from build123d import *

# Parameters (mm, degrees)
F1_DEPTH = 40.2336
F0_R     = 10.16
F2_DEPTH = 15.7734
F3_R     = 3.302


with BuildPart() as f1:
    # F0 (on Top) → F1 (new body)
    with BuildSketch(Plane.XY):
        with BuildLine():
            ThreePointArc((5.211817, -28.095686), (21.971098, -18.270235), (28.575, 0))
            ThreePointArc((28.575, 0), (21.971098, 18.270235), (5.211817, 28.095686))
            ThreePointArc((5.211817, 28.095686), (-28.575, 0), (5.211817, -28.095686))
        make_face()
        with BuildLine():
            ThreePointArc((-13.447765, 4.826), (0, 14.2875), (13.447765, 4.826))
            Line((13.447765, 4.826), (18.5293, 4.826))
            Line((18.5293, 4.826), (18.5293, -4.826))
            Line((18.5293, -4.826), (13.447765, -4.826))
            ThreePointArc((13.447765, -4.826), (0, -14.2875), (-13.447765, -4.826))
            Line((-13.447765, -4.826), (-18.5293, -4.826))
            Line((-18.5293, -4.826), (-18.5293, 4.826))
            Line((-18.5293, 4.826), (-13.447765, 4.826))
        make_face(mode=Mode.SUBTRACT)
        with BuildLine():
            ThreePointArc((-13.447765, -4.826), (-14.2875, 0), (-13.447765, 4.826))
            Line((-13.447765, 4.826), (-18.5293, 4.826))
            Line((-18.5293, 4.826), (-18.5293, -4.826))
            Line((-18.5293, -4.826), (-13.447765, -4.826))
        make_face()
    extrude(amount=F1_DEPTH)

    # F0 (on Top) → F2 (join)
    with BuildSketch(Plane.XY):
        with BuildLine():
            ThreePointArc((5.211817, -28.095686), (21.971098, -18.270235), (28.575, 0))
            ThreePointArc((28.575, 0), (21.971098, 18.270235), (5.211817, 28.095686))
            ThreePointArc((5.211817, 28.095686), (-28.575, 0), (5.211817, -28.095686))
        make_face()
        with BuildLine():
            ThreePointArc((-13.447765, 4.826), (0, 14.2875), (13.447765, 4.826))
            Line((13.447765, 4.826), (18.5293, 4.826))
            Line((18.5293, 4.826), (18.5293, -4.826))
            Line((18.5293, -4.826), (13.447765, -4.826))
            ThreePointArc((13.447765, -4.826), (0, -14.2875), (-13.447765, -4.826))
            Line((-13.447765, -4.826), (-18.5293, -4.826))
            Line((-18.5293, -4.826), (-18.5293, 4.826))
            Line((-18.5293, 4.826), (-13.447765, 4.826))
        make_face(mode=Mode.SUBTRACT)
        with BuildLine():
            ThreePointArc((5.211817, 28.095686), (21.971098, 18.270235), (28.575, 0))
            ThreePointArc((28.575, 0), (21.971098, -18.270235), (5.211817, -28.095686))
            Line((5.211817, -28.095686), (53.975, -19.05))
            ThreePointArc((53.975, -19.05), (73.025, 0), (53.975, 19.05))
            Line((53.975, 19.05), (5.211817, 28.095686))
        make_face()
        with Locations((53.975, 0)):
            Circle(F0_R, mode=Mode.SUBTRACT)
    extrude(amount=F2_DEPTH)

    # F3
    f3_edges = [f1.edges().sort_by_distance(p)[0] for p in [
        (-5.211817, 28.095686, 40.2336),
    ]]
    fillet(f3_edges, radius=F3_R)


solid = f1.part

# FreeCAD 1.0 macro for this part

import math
import FreeCAD as App
import Part
import Sketcher

V = App.Vector
Q = App.Units.Quantity


def edges_at(feature, points):
    """Names of the edges that pass closest to the given points."""
    edges = feature.Shape.Edges
    near = lambda p: min(range(len(edges)), key=lambda i: edges[i].distToShape(Part.Vertex(*p))[0])
    return sorted({f"Edge{near(p) + 1}" for p in points})

doc = App.newDocument("Part")
body = doc.addObject("PartDesign::Body", "Body")

# Sketch on XY plane
sketch1 = body.newObject("Sketcher::SketchObject", "Sketch")
sketch1.AttachmentSupport = (doc.getObject("XY_Plane"), [""])
sketch1.MapMode = "FlatFace"
sketch1.addGeometry([
    Part.ArcOfCircle(Part.Circle(V(0, 0, 0), V(0, 0, 1), 29), math.radians(-79), math.radians(0)),  # 0
    Part.ArcOfCircle(Part.Circle(V(0, 0, 0), V(0, 0, 1), 29), math.radians(0), math.radians(79)),  # 1
    Part.ArcOfCircle(Part.Circle(V(0, 0, 0), V(0, 0, 1), 29), math.radians(79), math.radians(281)),  # 2
    Part.ArcOfCircle(Part.Circle(V(0, 0, 0), V(0, 0, 1), 14), math.radians(-160), math.radians(-20)),  # 3
    Part.ArcOfCircle(Part.Circle(V(0, 0, 0), V(0, 0, 1), 14), math.radians(160), math.radians(200)),  # 4
    Part.ArcOfCircle(Part.Circle(V(0, 0, 0), V(0, 0, 1), 14), math.radians(20), math.radians(160)),  # 5
    Part.LineSegment(V(13, 5, 0), V(19, 5, 0)),  # 6
    Part.LineSegment(V(19, 5, 0), V(19, -5, 0)),  # 7
    Part.LineSegment(V(19, -5, 0), V(13, -5, 0)),  # 8
], False)
sketch1.addConstraint([
    Sketcher.Constraint("Tangent", 0, 2, 1, 1),
    Sketcher.Constraint("Tangent", 1, 2, 2, 1),
    Sketcher.Constraint("Tangent", 2, 2, 0, 1),
    Sketcher.Constraint("Tangent", 3, 1, 4, 2),
    Sketcher.Constraint("Tangent", 4, 1, 5, 2),
    Sketcher.Constraint("Coincident", 5, 1, 6, 1),
    Sketcher.Constraint("Coincident", 6, 2, 7, 1),
    Sketcher.Constraint("Coincident", 7, 2, 8, 1),
    Sketcher.Constraint("Coincident", 8, 2, 3, 2),
    Sketcher.Constraint("Horizontal", 6),
    Sketcher.Constraint("Vertical", 7),
    Sketcher.Constraint("Horizontal", 8),
    Sketcher.Constraint("Coincident", 0, 3, -1, 1),
    Sketcher.Constraint("Coincident", 3, 3, -1, 1),
    Sketcher.Constraint("Coincident", 5, 3, -1, 1),
    Sketcher.Constraint("PointOnObject", 0, 2, -1),
    Sketcher.Constraint("Horizontal", 4, 1, 5, 1),
    Sketcher.Constraint("Horizontal", 3, 1, 7, 2),
    Sketcher.Constraint("Vertical", 1, 2, 2, 2),
    Sketcher.Constraint("Vertical", 3, 1, 4, 1),
    Sketcher.Constraint("Radius", 0, Q("1.125 in")),
    Sketcher.Constraint("Radius", 3, Q("0.5625 in")),
    Sketcher.Constraint("DistanceY", 7, 2, 7, 1, Q("0.38 in")),
    Sketcher.Constraint("DistanceX", -1, 1, 6, 2, Q("0.7295 in")),
    Sketcher.Constraint("DistanceX", -1, 1, 1, 2, 5.211817),
])
pad1 = body.newObject("PartDesign::Pad", "Pad")
pad1.Profile = sketch1
pad1.Length = Q("1.584 in")

# Sketch on XY plane
sketch2 = body.newObject("Sketcher::SketchObject", "Sketch001")
sketch2.AttachmentSupport = (doc.getObject("XY_Plane"), [""])
sketch2.MapMode = "FlatFace"
sketch2.addGeometry([
    Part.ArcOfCircle(Part.Circle(V(0, 0, 0), V(0, 0, 1), 29), math.radians(79), math.radians(281)),  # 0
    Part.LineSegment(V(5, -28, 0), V(54, -19, 0)),  # 1
    Part.ArcOfCircle(Part.Circle(V(54, 0, 0), V(0, 0, 1), 19), math.radians(-90), math.radians(90)),  # 2
    Part.LineSegment(V(54, 19, 0), V(5, 28, 0)),  # 3
    Part.Circle(V(54, 0, 0), V(0, 0, 1), 10),  # 4
    Part.LineSegment(V(-19, 5, 0), V(-13, 5, 0)),  # 5
    Part.ArcOfCircle(Part.Circle(V(0, 0, 0), V(0, 0, 1), 14), math.radians(20), math.radians(160)),  # 6
    Part.LineSegment(V(13, 5, 0), V(19, 5, 0)),  # 7
    Part.LineSegment(V(19, 5, 0), V(19, -5, 0)),  # 8
    Part.LineSegment(V(19, -5, 0), V(13, -5, 0)),  # 9
    Part.ArcOfCircle(Part.Circle(V(0, 0, 0), V(0, 0, 1), 14), math.radians(-160), math.radians(-20)),  # 10
    Part.LineSegment(V(-13, -5, 0), V(-19, -5, 0)),  # 11
    Part.LineSegment(V(-19, -5, 0), V(-19, 5, 0)),  # 12
], False)
sketch2.addConstraint([
    Sketcher.Constraint("Tangent", 0, 2, 1, 1),
    Sketcher.Constraint("Coincident", 1, 2, 2, 1),
    Sketcher.Constraint("Coincident", 2, 2, 3, 1),
    Sketcher.Constraint("Tangent", 3, 2, 0, 1),
    Sketcher.Constraint("Coincident", 5, 2, 6, 2),
    Sketcher.Constraint("Coincident", 6, 1, 7, 1),
    Sketcher.Constraint("Coincident", 7, 2, 8, 1),
    Sketcher.Constraint("Coincident", 8, 2, 9, 1),
    Sketcher.Constraint("Coincident", 9, 2, 10, 2),
    Sketcher.Constraint("Coincident", 10, 1, 11, 1),
    Sketcher.Constraint("Coincident", 11, 2, 12, 1),
    Sketcher.Constraint("Coincident", 12, 2, 5, 1),
    Sketcher.Constraint("Horizontal", 5),
    Sketcher.Constraint("Horizontal", 7),
    Sketcher.Constraint("Vertical", 8),
    Sketcher.Constraint("Horizontal", 9),
    Sketcher.Constraint("Horizontal", 11),
    Sketcher.Constraint("Vertical", 12),
    Sketcher.Constraint("Coincident", 0, 3, -1, 1),
    Sketcher.Constraint("Coincident", 6, 3, -1, 1),
    Sketcher.Constraint("Coincident", 10, 3, -1, 1),
    Sketcher.Constraint("Coincident", 4, 3, 2, 3),
    Sketcher.Constraint("Equal", 6, 10),
    Sketcher.Constraint("Symmetric", 7, 2, 11, 2, -1, 1),
    Sketcher.Constraint("Symmetric", 1, 2, 2, 2, -1),
    Sketcher.Constraint("Horizontal", 5, 2, 6, 1),
    Sketcher.Constraint("Horizontal", 9, 2, 10, 1),
    Sketcher.Constraint("Vertical", 4, 3, 1, 2),
    Sketcher.Constraint("Diameter", 4, Q("0.8 in")),
    Sketcher.Constraint("Radius", 2, Q("0.75 in")),
    Sketcher.Constraint("Radius", 0, Q("1.125 in")),
    Sketcher.Constraint("Radius", 6, Q("0.5625 in")),
    Sketcher.Constraint("DistanceY", 8, 2, 8, 1, Q("0.38 in")),
    Sketcher.Constraint("DistanceX", -1, 1, 2, 3, Q("2.125 in")),
    Sketcher.Constraint("DistanceX", -1, 1, 7, 2, Q("0.7295 in")),
])
pad2 = body.newObject("PartDesign::Pad", "Pad001")
pad2.Profile = sketch2
pad2.Length = Q("0.621 in")
doc.recompute()

fillet = body.newObject("PartDesign::Fillet", "Fillet")
fillet.Base = (pad2, edges_at(pad2, [(-28.575, 0, 40.234)]))
fillet.Radius = Q("0.13 in")

doc.recompute()
